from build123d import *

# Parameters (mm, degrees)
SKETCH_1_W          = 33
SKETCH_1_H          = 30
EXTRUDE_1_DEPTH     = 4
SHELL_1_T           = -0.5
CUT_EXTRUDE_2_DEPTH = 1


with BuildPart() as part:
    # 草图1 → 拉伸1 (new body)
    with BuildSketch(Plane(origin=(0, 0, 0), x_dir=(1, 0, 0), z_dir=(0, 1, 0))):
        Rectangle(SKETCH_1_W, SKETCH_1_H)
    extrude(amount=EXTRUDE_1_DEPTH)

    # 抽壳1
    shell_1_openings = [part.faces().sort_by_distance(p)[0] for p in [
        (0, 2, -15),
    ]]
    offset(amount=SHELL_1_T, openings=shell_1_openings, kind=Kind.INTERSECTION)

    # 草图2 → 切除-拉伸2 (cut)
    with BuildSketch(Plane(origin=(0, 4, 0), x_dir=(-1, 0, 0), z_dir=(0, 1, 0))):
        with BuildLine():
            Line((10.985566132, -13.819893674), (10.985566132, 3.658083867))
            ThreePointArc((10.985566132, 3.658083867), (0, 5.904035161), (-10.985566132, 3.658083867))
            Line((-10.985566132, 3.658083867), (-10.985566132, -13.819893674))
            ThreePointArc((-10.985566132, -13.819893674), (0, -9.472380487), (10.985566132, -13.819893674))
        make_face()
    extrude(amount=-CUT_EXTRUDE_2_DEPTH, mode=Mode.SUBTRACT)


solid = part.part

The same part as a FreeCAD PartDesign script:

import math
import FreeCAD as App
import Part
import Sketcher

V = App.Vector


def faces_at(feature, points):
    """Names of the faces that lie closest to the given points."""
    faces = feature.Shape.Faces
    near = lambda p: min(range(len(faces)), key=lambda i: faces[i].distToShape(Part.Vertex(*p))[0])
    return sorted({f"Face{near(p) + 1}" for p in points})

doc = App.newDocument("Part")
params = doc.addObject("Spreadsheet::Sheet", "Params")
for row, (alias, value) in enumerate([
    ("sketch1_width", "33 mm"),
    ("sketch1_height", "30 mm"),
    ("pad1_length", "4 mm"),
    ("thickness_wall", "0.5 mm"),
    ("pocket1_length", "1 mm"),
], start=1):
    params.set(f"A{row}", alias)
    params.set(f"B{row}", "=" + value)
    params.setAlias(f"B{row}", alias)

body = doc.addObject("PartDesign::Body", "Body")

sketch1 = body.newObject("Sketcher::SketchObject", "Sketch")
sketch1.AttachmentSupport = (doc.getObject("XZ_Plane"), [""])
sketch1.MapMode = "FlatFace"
sketch1.addGeometry(Part.LineSegment(V(-16, -15, 0), V(-16, 15, 0)), False)
sketch1.addGeometry(Part.LineSegment(V(-16, 15, 0), V(16, 15, 0)), False)
sketch1.addGeometry(Part.LineSegment(V(16, 15, 0), V(16, -15, 0)), False)
sketch1.addGeometry(Part.LineSegment(V(16, -15, 0), V(-16, -15, 0)), False)
sketch1.addConstraint(Sketcher.Constraint("Coincident", 0, 2, 1, 1))
sketch1.addConstraint(Sketcher.Constraint("Coincident", 1, 2, 2, 1))
sketch1.addConstraint(Sketcher.Constraint("Coincident", 2, 2, 3, 1))
sketch1.addConstraint(Sketcher.Constraint("Coincident", 3, 2, 0, 1))
sketch1.addConstraint(Sketcher.Constraint("Vertical", 0))
sketch1.addConstraint(Sketcher.Constraint("Horizontal", 1))
sketch1.addConstraint(Sketcher.Constraint("Vertical", 2))
sketch1.addConstraint(Sketcher.Constraint("Horizontal", 3))
sketch1.addConstraint(Sketcher.Constraint("Symmetric", 0, 2, 2, 2, -1, 1))
sketch1.addConstraint(Sketcher.Constraint("DistanceX", 1, 1, 1, 2, 33.0))
sketch1.addConstraint(Sketcher.Constraint("DistanceY", 0, 1, 0, 2, 30.0))
sketch1.setExpression("Constraints[9]", "Params.sketch1_width")
sketch1.setExpression("Constraints[10]", "Params.sketch1_height")
pad1 = body.newObject("PartDesign::Pad", "Pad")
pad1.Profile = sketch1
pad1.setExpression("Length", "Params.pad1_length")
pad1.Reversed = True
doc.recompute()

thickness = body.newObject("PartDesign::Thickness", "Thickness")
thickness.Base = (pad1, faces_at(pad1, [(0, 2, -15)]))
thickness.setExpression("Value", "Params.thickness_wall")
thickness.Reversed = True
thickness.Join = "Intersection"

sketch2 = body.newObject("Sketcher::SketchObject", "Sketch001")
sketch2.AttachmentSupport = (doc.getObject("XZ_Plane"), [""])
sketch2.MapMode = "FlatFace"
sketch2.AttachmentOffset = App.Placement(V(0, 0, -4), App.Rotation())
sketch2.addGeometry(Part.LineSegment(V(-11, -14, 0), V(-11, 4, 0)), False)
sketch2.addGeometry(Part.ArcOfCircle(Part.Circle(V(0, -22, 0), V(0, 0, 1), 28), math.radians(67), math.radians(113)), False)
sketch2.addGeometry(Part.LineSegment(V(11, 4, 0), V(11, -14, 0)), False)
sketch2.addGeometry(Part.ArcOfCircle(Part.Circle(V(0, -26, 0), V(0, 0, 1), 16), math.radians(47), math.radians(133)), False)
sketch2.addConstraint(Sketcher.Constraint("Coincident", 0, 2, 1, 2))
sketch2.addConstraint(Sketcher.Constraint("Coincident", 1, 1, 2, 1))
sketch2.addConstraint(Sketcher.Constraint("Coincident", 2, 2, 3, 1))
sketch2.addConstraint(Sketcher.Constraint("Coincident", 3, 2, 0, 1))
sketch2.addConstraint(Sketcher.Constraint("Vertical", 0))
sketch2.addConstraint(Sketcher.Constraint("Vertical", 2))
sketch2.addConstraint(Sketcher.Constraint("Symmetric", 0, 2, 1, 1, -2))
sketch2.addConstraint(Sketcher.Constraint("PointOnObject", 3, 3, -2))
sketch2.addConstraint(Sketcher.Constraint("Radius", 1, 27.98969))
sketch2.addConstraint(Sketcher.Constraint("Radius", 3, 16.053262))
sketch2.addConstraint(Sketcher.Constraint("DistanceY", 0, 1, 0, 2, 17.477978))
sketch2.addConstraint(Sketcher.Constraint("DistanceY", 1, 3, 0, 2, 25.743739))
sketch2.addConstraint(Sketcher.Constraint("DistanceY", 1, 3, -1, 1, 22.085655))
pocket1 = body.newObject("PartDesign::Pocket", "Pocket")
pocket1.Profile = sketch2
pocket1.setExpression("Length", "Params.pocket1_length")
pocket1.Reversed = True

doc.recompute()
